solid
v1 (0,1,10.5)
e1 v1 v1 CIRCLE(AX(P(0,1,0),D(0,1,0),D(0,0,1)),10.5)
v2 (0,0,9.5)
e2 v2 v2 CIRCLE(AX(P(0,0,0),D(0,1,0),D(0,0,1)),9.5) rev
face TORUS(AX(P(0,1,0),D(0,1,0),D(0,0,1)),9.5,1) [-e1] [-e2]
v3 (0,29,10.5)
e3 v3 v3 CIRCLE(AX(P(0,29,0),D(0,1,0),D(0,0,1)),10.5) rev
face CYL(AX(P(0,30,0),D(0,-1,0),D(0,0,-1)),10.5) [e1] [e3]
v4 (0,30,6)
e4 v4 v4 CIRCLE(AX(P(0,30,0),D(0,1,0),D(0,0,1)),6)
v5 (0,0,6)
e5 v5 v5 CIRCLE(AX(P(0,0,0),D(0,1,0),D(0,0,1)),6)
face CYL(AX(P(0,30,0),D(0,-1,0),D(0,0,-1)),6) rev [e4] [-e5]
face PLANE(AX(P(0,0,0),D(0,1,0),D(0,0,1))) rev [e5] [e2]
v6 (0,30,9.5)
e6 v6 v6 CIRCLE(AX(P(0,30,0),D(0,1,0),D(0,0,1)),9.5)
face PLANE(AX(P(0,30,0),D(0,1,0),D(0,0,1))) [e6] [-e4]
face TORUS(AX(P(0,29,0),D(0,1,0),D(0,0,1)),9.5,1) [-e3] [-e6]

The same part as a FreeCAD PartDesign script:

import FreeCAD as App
import Part
import Sketcher

V = App.Vector


def edges_at(feature, points):
    """Names of the edges that pass closest to the given points."""
    edges = feature.Shape.Edges
    near = lambda p: min(range(len(edges)), key=lambda i: edges[i].distToShape(Part.Vertex(*p))[0])
    return sorted({f"Edge{near(p) + 1}" for p in points})

doc = App.newDocument("Part")
body = doc.addObject("PartDesign::Body", "Body")

# Sketch on XZ plane
sketch1 = body.newObject("Sketcher::SketchObject", "Sketch")
sketch1.AttachmentSupport = (doc.getObject("XZ_Plane"), [""])
sketch1.MapMode = "FlatFace"
sketch1.addGeometry(Part.Circle(V(0, 0, 0), V(0, 0, 1), 10.5), False)
sketch1.addGeometry(Part.Circle(V(0, 0, 0), V(0, 0, 1), 6), False)
sketch1.addConstraint(Sketcher.Constraint("Coincident", 0, 3, -1, 1))
sketch1.addConstraint(Sketcher.Constraint("Coincident", 1, 3, -1, 1))
sketch1.addConstraint(Sketcher.Constraint("Diameter", 0, 21.0))
sketch1.addConstraint(Sketcher.Constraint("Diameter", 1, 12.0))
pad1 = body.newObject("PartDesign::Pad", "Pad")
pad1.Profile = sketch1
pad1.Length = 30
pad1.Reversed = True
doc.recompute()

fillet = body.newObject("PartDesign::Fillet", "Fillet")
fillet.Base = (pad1, edges_at(pad1, [(0, 0, -10.5), (0, 30, -10.5)]))
fillet.Radius = 1

doc.recompute()
